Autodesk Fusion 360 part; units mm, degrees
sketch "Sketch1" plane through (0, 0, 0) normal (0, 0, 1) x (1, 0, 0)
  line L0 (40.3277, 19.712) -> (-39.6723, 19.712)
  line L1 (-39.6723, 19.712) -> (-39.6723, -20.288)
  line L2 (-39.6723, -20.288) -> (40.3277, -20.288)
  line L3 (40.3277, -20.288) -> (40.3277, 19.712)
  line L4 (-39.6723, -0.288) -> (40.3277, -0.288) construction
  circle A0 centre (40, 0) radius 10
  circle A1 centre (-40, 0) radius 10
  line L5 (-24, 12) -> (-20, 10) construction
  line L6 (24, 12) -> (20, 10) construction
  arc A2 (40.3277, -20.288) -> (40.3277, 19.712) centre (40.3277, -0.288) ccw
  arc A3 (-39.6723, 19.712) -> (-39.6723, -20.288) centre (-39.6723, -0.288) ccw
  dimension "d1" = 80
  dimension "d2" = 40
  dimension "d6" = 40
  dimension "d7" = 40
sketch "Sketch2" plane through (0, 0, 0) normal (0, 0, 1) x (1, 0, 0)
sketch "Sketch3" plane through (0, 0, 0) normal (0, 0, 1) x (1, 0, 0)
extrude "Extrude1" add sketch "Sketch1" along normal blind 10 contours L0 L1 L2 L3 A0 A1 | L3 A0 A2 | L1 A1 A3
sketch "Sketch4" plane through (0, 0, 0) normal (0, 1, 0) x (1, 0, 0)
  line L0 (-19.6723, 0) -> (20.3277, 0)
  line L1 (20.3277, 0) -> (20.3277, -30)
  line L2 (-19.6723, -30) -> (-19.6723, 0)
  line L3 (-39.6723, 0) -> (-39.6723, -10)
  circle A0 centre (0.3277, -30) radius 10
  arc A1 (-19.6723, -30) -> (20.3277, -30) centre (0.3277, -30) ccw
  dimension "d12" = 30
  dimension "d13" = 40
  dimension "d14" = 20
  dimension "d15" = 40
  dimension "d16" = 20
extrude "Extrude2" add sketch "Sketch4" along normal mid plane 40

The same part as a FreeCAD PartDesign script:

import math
import FreeCAD as App
import Part
import Sketcher
from FreeCAD import Vector
Q = App.Units.Quantity

doc = App.newDocument("Part")
params = doc.addObject("Spreadsheet::Sheet", "Params")
for row, (alias, value) in enumerate([
    ("sketch1_radius", "20 mm"),
    ("sketch1_width", "80 mm"),
    ("sketch1_diameter", "20 mm"),
    ("pad1_length", "10 mm"),
    ("sketch2_diameter", "20 mm"),
    ("sketch2_radius", "20 mm"),
    ("sketch2_height", "30 mm"),
    ("pad2_length", "40 mm"),
], start=1):
    params.set(f"A{row}", alias)
    params.set(f"B{row}", "=" + value)
    params.setAlias(f"B{row}", alias)

body = doc.addObject("PartDesign::Body", "Body")

# Sketch on XY plane
sketch1 = body.newObject("Sketcher::SketchObject", "Sketch")
sketch1.AttachmentSupport = (doc.getObject("XY_Plane"), [""])
sketch1.MapMode = "FlatFace"
sketch1.addGeometry([
    Part.LineSegment(Vector(-40, -20, 0), Vector(40, -20, 0)),  # 0
    Part.ArcOfCircle(Part.Circle(Vector(40, 0, 0), Vector(0, 0, 1), 20), math.radians(-90), math.radians(90)),  # 1
    Part.LineSegment(Vector(40, 20, 0), Vector(-40, 20, 0)),  # 2
    Part.ArcOfCircle(Part.Circle(Vector(-40, 0, 0), Vector(0, 0, 1), 20), math.radians(90), math.radians(270)),  # 3
    Part.Circle(Vector(40, 0, 0), Vector(0, 0, 1), 10),  # 4
    Part.Circle(Vector(-40, 0, 0), Vector(0, 0, 1), 10),  # 5
], False)
sketch1.addConstraint([
    Sketcher.Constraint("Tangent", 0, 2, 1, 1),
    Sketcher.Constraint("Tangent", 1, 2, 2, 1),
    Sketcher.Constraint("Tangent", 2, 2, 3, 1),
    Sketcher.Constraint("Tangent", 3, 2, 0, 1),
    Sketcher.Constraint("Horizontal", 0),
    Sketcher.Constraint("Horizontal", 2),
    Sketcher.Constraint("Equal", 4, 5),
    Sketcher.Constraint("Symmetric", 4, 3, 5, 3, -1, 1),
    Sketcher.Constraint("PointOnObject", 4, 3, -1),
    Sketcher.Constraint("Radius", 1, Q("20 mm")),
    Sketcher.Constraint("DistanceX", 0, 1, 0, 2, Q("80 mm")),
    Sketcher.Constraint("Diameter", 4, Q("20 mm")),
    Sketcher.Constraint("DistanceX", -1, 1, 4, 3, Q("40 mm")),
    Sketcher.Constraint("DistanceY", 1, 3, -1, 1, Q("0.288 mm")),
    Sketcher.Constraint("DistanceX", -1, 1, 1, 3, Q("40.3277 mm")),
])
sketch1.setExpression("Constraints[9]", "Params.sketch1_radius")
sketch1.setExpression("Constraints[10]", "Params.sketch1_width")
sketch1.setExpression("Constraints[11]", "Params.sketch1_diameter")
pad1 = body.newObject("PartDesign::Pad", "Pad")
pad1.Profile = sketch1
pad1.setExpression("Length", "Params.pad1_length")

# Sketch on XZ plane
sketch2 = body.newObject("Sketcher::SketchObject", "Sketch001")
sketch2.AttachmentSupport = (doc.getObject("XZ_Plane"), [""])
sketch2.MapMode = "FlatFace"
sketch2.addGeometry([
    Part.LineSegment(Vector(20, 0, 0), Vector(-20, 0, 0)),  # 0
    Part.LineSegment(Vector(-20, 0, 0), Vector(-20, 30, 0)),  # 1
    Part.ArcOfCircle(Part.Circle(Vector(0, 30, 0), Vector(0, 0, 1), 20), math.radians(0), math.radians(180)),  # 2
    Part.LineSegment(Vector(20, 30, 0), Vector(20, 0, 0)),  # 3
    Part.Circle(Vector(0, 30, 0), Vector(0, 0, 1), 10),  # 4
], False)
sketch2.addConstraint([
    Sketcher.Constraint("Coincident", 0, 2, 1, 1),
    Sketcher.Constraint("Tangent", 1, 2, 2, 2),
    Sketcher.Constraint("Tangent", 2, 1, 3, 1),
    Sketcher.Constraint("Coincident", 3, 2, 0, 1),
    Sketcher.Constraint("Horizontal", 0),
    Sketcher.Constraint("Vertical", 1),
    Sketcher.Constraint("Vertical", 3),
    Sketcher.Constraint("Coincident", 4, 3, 2, 3),
    Sketcher.Constraint("PointOnObject", 0, 2, -1),
    Sketcher.Constraint("Diameter", 4, Q("20 mm")),
    Sketcher.Constraint("Radius", 2, Q("20 mm")),
    Sketcher.Constraint("DistanceY", 1, 1, 1, 2, Q("30 mm")),
    Sketcher.Constraint("DistanceX", -1, 1, 2, 3, Q("0.3277 mm")),
])
sketch2.setExpression("Constraints[9]", "Params.sketch2_diameter")
sketch2.setExpression("Constraints[10]", "Params.sketch2_radius")
sketch2.setExpression("Constraints[11]", "Params.sketch2_height")
pad2 = body.newObject("PartDesign::Pad", "Pad001")
pad2.Profile = sketch2
pad2.setExpression("Length", "Params.pad2_length")
pad2.Midplane = True

doc.recompute()
